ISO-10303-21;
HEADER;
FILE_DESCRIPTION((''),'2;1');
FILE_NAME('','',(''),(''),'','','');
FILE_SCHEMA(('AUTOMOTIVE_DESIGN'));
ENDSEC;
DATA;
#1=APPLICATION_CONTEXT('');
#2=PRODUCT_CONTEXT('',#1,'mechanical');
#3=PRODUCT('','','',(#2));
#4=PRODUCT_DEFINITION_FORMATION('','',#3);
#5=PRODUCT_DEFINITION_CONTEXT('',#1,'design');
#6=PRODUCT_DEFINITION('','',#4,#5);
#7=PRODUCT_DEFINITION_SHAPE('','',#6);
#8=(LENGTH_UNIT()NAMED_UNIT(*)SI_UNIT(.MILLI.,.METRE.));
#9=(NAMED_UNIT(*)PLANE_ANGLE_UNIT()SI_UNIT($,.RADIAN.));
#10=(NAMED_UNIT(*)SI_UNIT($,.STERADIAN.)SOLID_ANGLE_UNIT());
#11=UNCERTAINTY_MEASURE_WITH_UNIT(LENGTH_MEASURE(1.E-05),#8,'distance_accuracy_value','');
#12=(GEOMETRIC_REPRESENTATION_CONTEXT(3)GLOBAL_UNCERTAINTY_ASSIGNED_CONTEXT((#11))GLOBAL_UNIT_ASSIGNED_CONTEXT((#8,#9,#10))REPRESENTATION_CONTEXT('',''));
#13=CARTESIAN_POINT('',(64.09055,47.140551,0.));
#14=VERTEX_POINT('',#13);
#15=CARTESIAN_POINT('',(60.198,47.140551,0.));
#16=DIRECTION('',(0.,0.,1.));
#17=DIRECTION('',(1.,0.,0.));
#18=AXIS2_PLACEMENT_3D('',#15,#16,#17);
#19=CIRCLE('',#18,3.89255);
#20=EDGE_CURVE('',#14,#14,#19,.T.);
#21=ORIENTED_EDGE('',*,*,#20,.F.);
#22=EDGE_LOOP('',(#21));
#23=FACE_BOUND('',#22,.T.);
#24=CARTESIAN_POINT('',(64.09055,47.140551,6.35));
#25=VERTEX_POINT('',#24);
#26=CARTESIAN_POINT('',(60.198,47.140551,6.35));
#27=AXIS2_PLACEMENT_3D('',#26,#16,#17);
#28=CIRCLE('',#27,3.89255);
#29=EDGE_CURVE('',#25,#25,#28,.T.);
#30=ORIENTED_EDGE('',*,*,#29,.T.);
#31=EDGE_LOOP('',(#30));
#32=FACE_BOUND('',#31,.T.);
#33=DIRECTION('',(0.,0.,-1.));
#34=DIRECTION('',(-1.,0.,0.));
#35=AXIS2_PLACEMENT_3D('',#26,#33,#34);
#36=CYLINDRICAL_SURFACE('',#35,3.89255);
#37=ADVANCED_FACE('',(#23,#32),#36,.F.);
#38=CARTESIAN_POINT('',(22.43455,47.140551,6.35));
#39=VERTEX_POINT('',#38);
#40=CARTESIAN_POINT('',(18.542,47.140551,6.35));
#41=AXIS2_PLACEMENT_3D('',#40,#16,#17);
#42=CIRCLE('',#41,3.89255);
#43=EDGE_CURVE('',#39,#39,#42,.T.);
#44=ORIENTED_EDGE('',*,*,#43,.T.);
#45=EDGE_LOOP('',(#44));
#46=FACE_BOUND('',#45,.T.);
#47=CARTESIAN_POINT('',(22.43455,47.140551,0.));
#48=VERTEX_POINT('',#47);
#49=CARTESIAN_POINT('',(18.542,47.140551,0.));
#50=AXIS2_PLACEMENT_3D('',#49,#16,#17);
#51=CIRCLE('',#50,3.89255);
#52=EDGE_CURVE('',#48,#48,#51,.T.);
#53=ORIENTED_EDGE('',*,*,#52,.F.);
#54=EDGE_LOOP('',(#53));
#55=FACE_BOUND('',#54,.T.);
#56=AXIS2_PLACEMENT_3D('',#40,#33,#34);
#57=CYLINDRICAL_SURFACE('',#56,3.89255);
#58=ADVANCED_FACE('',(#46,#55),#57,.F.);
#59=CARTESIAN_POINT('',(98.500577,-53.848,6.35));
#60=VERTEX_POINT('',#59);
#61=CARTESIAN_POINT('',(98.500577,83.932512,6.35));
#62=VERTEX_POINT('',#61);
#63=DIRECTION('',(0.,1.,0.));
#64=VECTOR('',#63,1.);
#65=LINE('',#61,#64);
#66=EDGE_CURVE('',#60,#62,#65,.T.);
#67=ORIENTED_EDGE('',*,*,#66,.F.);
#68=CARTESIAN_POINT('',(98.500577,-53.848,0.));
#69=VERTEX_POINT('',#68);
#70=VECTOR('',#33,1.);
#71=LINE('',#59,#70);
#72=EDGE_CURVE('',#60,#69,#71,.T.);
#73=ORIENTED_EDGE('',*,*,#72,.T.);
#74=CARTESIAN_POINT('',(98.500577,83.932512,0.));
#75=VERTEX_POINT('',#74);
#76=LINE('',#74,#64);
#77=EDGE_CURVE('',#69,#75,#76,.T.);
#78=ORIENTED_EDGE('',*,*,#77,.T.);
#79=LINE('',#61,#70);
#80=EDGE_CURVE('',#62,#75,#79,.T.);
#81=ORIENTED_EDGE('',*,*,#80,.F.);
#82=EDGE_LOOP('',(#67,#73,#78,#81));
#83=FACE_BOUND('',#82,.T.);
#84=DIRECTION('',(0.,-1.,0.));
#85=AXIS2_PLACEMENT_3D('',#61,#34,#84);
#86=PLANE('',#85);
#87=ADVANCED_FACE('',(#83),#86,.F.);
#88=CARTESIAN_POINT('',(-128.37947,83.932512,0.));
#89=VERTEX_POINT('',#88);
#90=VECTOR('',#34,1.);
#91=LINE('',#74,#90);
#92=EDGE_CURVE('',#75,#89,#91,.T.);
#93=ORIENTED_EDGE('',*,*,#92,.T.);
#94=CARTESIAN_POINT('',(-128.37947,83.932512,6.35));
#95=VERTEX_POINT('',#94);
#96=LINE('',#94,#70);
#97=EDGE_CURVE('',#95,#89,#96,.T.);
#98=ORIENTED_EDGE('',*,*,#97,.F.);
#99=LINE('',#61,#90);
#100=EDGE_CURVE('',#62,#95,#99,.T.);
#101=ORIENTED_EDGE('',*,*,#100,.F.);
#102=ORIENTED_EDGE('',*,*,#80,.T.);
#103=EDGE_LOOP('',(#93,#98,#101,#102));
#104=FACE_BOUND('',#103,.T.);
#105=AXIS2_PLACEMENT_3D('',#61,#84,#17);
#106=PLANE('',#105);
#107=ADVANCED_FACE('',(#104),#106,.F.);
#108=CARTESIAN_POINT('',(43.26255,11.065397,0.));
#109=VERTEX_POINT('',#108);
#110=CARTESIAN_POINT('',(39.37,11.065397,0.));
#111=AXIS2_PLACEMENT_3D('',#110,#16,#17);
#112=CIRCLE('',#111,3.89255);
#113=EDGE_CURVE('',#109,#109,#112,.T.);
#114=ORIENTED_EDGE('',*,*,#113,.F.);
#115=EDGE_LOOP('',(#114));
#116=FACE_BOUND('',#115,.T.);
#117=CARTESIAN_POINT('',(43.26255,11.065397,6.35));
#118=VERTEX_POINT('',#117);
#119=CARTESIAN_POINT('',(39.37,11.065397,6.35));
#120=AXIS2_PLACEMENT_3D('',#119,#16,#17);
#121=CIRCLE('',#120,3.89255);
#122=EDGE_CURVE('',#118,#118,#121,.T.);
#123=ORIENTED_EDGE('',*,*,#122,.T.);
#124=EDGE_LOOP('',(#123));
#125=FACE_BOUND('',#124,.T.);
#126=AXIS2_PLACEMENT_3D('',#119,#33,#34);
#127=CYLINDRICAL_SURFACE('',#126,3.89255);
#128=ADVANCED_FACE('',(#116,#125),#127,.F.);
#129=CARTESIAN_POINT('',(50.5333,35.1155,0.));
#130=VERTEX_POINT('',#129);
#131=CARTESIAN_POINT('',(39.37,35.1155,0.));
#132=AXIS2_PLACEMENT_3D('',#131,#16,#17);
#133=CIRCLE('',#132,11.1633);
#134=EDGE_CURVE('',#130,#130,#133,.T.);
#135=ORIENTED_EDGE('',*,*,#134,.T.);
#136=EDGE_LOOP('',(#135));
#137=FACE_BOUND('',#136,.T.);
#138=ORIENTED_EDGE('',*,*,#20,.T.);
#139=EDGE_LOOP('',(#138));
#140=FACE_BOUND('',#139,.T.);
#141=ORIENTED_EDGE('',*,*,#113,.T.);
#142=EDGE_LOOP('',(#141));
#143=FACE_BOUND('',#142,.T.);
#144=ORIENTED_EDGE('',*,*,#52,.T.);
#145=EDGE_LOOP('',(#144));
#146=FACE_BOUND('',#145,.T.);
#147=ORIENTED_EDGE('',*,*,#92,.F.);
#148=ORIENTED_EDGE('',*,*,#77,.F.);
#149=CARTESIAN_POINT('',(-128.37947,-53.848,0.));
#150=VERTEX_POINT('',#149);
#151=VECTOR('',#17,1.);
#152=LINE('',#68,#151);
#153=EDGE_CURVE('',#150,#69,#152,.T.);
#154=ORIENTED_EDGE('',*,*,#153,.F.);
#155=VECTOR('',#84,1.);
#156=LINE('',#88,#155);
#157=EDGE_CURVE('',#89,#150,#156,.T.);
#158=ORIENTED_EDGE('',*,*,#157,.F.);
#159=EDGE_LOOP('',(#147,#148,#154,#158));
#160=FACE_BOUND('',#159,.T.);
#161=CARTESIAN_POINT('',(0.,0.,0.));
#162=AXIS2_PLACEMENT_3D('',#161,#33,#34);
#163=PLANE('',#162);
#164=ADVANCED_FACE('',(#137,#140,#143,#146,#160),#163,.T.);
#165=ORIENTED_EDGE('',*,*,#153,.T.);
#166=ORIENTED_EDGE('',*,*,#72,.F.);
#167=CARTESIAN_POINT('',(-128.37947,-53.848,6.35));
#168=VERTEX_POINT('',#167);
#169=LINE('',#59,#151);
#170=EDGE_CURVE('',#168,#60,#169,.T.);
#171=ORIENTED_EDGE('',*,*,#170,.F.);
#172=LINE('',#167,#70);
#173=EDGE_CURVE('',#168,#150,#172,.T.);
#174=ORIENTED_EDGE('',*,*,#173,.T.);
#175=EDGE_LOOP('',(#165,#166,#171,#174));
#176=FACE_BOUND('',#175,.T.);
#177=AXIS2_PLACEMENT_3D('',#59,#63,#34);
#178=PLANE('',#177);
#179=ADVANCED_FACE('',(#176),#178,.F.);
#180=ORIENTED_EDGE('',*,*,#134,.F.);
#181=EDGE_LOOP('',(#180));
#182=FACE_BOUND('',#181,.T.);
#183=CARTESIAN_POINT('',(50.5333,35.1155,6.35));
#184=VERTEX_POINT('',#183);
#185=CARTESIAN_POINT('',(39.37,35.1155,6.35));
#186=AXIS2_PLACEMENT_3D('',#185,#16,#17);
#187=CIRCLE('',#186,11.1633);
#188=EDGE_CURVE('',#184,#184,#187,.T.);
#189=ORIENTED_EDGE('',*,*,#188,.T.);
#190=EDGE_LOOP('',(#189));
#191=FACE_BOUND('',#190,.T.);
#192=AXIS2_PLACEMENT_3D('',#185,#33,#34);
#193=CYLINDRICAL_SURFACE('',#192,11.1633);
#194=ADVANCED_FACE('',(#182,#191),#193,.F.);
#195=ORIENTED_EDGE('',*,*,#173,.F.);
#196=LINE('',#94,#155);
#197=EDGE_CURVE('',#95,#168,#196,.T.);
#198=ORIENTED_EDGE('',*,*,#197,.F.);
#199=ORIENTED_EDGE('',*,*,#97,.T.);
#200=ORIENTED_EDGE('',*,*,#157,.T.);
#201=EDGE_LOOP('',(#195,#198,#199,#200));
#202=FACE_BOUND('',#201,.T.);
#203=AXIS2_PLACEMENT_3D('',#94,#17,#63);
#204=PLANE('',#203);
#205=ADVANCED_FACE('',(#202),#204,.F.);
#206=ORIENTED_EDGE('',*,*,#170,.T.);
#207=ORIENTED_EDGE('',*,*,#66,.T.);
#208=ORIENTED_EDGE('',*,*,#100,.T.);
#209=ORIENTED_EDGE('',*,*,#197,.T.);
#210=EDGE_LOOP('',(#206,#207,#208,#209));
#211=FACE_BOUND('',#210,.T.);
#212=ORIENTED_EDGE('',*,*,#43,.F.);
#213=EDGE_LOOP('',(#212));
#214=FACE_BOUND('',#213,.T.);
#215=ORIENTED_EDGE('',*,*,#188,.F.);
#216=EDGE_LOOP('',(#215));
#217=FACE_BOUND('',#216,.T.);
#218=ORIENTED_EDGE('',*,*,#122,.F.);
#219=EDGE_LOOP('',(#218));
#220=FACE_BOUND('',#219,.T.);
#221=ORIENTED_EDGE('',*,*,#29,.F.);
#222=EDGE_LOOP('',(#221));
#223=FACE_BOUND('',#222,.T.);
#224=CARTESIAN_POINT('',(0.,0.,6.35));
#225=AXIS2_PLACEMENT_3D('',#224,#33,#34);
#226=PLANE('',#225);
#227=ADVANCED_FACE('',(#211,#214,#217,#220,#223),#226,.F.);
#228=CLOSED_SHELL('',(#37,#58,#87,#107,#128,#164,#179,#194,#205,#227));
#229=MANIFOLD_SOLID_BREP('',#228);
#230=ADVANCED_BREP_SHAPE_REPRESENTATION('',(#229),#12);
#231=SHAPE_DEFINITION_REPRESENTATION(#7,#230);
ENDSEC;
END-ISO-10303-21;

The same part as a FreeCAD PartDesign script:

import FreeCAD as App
import Part
import Sketcher
Q = App.Units.Quantity


def add_polygon(sketch, points):
    """Adds a closed chain of lines whose ends are joined by coincident constraints."""
    first, n = sketch.GeometryCount, len(points)
    for a, b in zip(points, points[1:] + points[:1]):
        sketch.addGeometry(Part.LineSegment(App.Vector(*a, 0), App.Vector(*b, 0)), False)
    for i in range(n):
        sketch.addConstraint(Sketcher.Constraint("Coincident", first + i, 2, first + (i + 1) % n, 1))

doc = App.newDocument("Part")
params = doc.addObject("Spreadsheet::Sheet", "Params")
for row, (alias, value) in enumerate([
    ("sketch1_diameter", "0.879 in"),
    ("pad1_length", "0.25 in"),
], start=1):
    params.set(f"A{row}", alias)
    params.set(f"B{row}", "=" + value)
    params.setAlias(f"B{row}", alias)

body = doc.addObject("PartDesign::Body", "Body")

# Sketch on XY plane
sketch1 = body.newObject("Sketcher::SketchObject", "Sketch")
sketch1.AttachmentSupport = (doc.getObject("XY_Plane"), [""])
sketch1.MapMode = "FlatFace"
add_polygon(sketch1, [(-128.37947, 83.932512), (-128.37947, -53.848), (98.500577, -53.848), (98.500577, 83.932512)])  # lines 0-3
sketch1.addGeometry(Part.Circle(App.Vector(39.37, 11.065397, 0), App.Vector(0, 0, 1), 3.89255), False)  # 4
sketch1.addGeometry(Part.Circle(App.Vector(39.37, 35.1155, 0), App.Vector(0, 0, 1), 11.1633), False)  # 5
sketch1.addGeometry(Part.Circle(App.Vector(18.542, 47.140551, 0), App.Vector(0, 0, 1), 3.89255), False)  # 6
sketch1.addGeometry(Part.Circle(App.Vector(60.198, 47.140551, 0), App.Vector(0, 0, 1), 3.89255), False)  # 7
sketch1.addConstraint([
    Sketcher.Constraint("Vertical", 0),
    Sketcher.Constraint("Horizontal", 1),
    Sketcher.Constraint("Vertical", 2),
    Sketcher.Constraint("Horizontal", 3),
    Sketcher.Constraint("Equal", 4, 6),
    Sketcher.Constraint("Equal", 6, 7),
    Sketcher.Constraint("Horizontal", 6, 3, 7, 3),
    Sketcher.Constraint("Vertical", 4, 3, 5, 3),
    Sketcher.Constraint("Diameter", 5, Q("0.879 in")),
    Sketcher.Constraint("Diameter", 4, Q("0.3065 in")),
    Sketcher.Constraint("DistanceX", -1, 1, 4, 3, Q("1.55 in")),
    Sketcher.Constraint("DistanceX", -1, 1, 6, 3, Q("0.73 in")),
    Sketcher.Constraint("DistanceX", -1, 1, 7, 3, Q("2.37 in")),
    Sketcher.Constraint("DistanceY", 0, 2, -1, 1, Q("2.12 in")),
    Sketcher.Constraint("DistanceY", -1, 1, 5, 3, Q("1.3825 in")),
    Sketcher.Constraint("DistanceX", 1, 1, 1, 2, 226.880047),
    Sketcher.Constraint("DistanceY", 0, 2, 0, 1, 137.780512),
    Sketcher.Constraint("DistanceY", -1, 1, 6, 3, 47.140551),
    Sketcher.Constraint("DistanceX", 0, 2, -1, 1, 128.37947),
    Sketcher.Constraint("DistanceY", -1, 1, 4, 3, 11.065397),
])
sketch1.setExpression("Constraints[12]", "Params.sketch1_diameter")
pad1 = body.newObject("PartDesign::Pad", "Pad")
pad1.Profile = sketch1
pad1.setExpression("Length", "Params.pad1_length")

doc.recompute()
